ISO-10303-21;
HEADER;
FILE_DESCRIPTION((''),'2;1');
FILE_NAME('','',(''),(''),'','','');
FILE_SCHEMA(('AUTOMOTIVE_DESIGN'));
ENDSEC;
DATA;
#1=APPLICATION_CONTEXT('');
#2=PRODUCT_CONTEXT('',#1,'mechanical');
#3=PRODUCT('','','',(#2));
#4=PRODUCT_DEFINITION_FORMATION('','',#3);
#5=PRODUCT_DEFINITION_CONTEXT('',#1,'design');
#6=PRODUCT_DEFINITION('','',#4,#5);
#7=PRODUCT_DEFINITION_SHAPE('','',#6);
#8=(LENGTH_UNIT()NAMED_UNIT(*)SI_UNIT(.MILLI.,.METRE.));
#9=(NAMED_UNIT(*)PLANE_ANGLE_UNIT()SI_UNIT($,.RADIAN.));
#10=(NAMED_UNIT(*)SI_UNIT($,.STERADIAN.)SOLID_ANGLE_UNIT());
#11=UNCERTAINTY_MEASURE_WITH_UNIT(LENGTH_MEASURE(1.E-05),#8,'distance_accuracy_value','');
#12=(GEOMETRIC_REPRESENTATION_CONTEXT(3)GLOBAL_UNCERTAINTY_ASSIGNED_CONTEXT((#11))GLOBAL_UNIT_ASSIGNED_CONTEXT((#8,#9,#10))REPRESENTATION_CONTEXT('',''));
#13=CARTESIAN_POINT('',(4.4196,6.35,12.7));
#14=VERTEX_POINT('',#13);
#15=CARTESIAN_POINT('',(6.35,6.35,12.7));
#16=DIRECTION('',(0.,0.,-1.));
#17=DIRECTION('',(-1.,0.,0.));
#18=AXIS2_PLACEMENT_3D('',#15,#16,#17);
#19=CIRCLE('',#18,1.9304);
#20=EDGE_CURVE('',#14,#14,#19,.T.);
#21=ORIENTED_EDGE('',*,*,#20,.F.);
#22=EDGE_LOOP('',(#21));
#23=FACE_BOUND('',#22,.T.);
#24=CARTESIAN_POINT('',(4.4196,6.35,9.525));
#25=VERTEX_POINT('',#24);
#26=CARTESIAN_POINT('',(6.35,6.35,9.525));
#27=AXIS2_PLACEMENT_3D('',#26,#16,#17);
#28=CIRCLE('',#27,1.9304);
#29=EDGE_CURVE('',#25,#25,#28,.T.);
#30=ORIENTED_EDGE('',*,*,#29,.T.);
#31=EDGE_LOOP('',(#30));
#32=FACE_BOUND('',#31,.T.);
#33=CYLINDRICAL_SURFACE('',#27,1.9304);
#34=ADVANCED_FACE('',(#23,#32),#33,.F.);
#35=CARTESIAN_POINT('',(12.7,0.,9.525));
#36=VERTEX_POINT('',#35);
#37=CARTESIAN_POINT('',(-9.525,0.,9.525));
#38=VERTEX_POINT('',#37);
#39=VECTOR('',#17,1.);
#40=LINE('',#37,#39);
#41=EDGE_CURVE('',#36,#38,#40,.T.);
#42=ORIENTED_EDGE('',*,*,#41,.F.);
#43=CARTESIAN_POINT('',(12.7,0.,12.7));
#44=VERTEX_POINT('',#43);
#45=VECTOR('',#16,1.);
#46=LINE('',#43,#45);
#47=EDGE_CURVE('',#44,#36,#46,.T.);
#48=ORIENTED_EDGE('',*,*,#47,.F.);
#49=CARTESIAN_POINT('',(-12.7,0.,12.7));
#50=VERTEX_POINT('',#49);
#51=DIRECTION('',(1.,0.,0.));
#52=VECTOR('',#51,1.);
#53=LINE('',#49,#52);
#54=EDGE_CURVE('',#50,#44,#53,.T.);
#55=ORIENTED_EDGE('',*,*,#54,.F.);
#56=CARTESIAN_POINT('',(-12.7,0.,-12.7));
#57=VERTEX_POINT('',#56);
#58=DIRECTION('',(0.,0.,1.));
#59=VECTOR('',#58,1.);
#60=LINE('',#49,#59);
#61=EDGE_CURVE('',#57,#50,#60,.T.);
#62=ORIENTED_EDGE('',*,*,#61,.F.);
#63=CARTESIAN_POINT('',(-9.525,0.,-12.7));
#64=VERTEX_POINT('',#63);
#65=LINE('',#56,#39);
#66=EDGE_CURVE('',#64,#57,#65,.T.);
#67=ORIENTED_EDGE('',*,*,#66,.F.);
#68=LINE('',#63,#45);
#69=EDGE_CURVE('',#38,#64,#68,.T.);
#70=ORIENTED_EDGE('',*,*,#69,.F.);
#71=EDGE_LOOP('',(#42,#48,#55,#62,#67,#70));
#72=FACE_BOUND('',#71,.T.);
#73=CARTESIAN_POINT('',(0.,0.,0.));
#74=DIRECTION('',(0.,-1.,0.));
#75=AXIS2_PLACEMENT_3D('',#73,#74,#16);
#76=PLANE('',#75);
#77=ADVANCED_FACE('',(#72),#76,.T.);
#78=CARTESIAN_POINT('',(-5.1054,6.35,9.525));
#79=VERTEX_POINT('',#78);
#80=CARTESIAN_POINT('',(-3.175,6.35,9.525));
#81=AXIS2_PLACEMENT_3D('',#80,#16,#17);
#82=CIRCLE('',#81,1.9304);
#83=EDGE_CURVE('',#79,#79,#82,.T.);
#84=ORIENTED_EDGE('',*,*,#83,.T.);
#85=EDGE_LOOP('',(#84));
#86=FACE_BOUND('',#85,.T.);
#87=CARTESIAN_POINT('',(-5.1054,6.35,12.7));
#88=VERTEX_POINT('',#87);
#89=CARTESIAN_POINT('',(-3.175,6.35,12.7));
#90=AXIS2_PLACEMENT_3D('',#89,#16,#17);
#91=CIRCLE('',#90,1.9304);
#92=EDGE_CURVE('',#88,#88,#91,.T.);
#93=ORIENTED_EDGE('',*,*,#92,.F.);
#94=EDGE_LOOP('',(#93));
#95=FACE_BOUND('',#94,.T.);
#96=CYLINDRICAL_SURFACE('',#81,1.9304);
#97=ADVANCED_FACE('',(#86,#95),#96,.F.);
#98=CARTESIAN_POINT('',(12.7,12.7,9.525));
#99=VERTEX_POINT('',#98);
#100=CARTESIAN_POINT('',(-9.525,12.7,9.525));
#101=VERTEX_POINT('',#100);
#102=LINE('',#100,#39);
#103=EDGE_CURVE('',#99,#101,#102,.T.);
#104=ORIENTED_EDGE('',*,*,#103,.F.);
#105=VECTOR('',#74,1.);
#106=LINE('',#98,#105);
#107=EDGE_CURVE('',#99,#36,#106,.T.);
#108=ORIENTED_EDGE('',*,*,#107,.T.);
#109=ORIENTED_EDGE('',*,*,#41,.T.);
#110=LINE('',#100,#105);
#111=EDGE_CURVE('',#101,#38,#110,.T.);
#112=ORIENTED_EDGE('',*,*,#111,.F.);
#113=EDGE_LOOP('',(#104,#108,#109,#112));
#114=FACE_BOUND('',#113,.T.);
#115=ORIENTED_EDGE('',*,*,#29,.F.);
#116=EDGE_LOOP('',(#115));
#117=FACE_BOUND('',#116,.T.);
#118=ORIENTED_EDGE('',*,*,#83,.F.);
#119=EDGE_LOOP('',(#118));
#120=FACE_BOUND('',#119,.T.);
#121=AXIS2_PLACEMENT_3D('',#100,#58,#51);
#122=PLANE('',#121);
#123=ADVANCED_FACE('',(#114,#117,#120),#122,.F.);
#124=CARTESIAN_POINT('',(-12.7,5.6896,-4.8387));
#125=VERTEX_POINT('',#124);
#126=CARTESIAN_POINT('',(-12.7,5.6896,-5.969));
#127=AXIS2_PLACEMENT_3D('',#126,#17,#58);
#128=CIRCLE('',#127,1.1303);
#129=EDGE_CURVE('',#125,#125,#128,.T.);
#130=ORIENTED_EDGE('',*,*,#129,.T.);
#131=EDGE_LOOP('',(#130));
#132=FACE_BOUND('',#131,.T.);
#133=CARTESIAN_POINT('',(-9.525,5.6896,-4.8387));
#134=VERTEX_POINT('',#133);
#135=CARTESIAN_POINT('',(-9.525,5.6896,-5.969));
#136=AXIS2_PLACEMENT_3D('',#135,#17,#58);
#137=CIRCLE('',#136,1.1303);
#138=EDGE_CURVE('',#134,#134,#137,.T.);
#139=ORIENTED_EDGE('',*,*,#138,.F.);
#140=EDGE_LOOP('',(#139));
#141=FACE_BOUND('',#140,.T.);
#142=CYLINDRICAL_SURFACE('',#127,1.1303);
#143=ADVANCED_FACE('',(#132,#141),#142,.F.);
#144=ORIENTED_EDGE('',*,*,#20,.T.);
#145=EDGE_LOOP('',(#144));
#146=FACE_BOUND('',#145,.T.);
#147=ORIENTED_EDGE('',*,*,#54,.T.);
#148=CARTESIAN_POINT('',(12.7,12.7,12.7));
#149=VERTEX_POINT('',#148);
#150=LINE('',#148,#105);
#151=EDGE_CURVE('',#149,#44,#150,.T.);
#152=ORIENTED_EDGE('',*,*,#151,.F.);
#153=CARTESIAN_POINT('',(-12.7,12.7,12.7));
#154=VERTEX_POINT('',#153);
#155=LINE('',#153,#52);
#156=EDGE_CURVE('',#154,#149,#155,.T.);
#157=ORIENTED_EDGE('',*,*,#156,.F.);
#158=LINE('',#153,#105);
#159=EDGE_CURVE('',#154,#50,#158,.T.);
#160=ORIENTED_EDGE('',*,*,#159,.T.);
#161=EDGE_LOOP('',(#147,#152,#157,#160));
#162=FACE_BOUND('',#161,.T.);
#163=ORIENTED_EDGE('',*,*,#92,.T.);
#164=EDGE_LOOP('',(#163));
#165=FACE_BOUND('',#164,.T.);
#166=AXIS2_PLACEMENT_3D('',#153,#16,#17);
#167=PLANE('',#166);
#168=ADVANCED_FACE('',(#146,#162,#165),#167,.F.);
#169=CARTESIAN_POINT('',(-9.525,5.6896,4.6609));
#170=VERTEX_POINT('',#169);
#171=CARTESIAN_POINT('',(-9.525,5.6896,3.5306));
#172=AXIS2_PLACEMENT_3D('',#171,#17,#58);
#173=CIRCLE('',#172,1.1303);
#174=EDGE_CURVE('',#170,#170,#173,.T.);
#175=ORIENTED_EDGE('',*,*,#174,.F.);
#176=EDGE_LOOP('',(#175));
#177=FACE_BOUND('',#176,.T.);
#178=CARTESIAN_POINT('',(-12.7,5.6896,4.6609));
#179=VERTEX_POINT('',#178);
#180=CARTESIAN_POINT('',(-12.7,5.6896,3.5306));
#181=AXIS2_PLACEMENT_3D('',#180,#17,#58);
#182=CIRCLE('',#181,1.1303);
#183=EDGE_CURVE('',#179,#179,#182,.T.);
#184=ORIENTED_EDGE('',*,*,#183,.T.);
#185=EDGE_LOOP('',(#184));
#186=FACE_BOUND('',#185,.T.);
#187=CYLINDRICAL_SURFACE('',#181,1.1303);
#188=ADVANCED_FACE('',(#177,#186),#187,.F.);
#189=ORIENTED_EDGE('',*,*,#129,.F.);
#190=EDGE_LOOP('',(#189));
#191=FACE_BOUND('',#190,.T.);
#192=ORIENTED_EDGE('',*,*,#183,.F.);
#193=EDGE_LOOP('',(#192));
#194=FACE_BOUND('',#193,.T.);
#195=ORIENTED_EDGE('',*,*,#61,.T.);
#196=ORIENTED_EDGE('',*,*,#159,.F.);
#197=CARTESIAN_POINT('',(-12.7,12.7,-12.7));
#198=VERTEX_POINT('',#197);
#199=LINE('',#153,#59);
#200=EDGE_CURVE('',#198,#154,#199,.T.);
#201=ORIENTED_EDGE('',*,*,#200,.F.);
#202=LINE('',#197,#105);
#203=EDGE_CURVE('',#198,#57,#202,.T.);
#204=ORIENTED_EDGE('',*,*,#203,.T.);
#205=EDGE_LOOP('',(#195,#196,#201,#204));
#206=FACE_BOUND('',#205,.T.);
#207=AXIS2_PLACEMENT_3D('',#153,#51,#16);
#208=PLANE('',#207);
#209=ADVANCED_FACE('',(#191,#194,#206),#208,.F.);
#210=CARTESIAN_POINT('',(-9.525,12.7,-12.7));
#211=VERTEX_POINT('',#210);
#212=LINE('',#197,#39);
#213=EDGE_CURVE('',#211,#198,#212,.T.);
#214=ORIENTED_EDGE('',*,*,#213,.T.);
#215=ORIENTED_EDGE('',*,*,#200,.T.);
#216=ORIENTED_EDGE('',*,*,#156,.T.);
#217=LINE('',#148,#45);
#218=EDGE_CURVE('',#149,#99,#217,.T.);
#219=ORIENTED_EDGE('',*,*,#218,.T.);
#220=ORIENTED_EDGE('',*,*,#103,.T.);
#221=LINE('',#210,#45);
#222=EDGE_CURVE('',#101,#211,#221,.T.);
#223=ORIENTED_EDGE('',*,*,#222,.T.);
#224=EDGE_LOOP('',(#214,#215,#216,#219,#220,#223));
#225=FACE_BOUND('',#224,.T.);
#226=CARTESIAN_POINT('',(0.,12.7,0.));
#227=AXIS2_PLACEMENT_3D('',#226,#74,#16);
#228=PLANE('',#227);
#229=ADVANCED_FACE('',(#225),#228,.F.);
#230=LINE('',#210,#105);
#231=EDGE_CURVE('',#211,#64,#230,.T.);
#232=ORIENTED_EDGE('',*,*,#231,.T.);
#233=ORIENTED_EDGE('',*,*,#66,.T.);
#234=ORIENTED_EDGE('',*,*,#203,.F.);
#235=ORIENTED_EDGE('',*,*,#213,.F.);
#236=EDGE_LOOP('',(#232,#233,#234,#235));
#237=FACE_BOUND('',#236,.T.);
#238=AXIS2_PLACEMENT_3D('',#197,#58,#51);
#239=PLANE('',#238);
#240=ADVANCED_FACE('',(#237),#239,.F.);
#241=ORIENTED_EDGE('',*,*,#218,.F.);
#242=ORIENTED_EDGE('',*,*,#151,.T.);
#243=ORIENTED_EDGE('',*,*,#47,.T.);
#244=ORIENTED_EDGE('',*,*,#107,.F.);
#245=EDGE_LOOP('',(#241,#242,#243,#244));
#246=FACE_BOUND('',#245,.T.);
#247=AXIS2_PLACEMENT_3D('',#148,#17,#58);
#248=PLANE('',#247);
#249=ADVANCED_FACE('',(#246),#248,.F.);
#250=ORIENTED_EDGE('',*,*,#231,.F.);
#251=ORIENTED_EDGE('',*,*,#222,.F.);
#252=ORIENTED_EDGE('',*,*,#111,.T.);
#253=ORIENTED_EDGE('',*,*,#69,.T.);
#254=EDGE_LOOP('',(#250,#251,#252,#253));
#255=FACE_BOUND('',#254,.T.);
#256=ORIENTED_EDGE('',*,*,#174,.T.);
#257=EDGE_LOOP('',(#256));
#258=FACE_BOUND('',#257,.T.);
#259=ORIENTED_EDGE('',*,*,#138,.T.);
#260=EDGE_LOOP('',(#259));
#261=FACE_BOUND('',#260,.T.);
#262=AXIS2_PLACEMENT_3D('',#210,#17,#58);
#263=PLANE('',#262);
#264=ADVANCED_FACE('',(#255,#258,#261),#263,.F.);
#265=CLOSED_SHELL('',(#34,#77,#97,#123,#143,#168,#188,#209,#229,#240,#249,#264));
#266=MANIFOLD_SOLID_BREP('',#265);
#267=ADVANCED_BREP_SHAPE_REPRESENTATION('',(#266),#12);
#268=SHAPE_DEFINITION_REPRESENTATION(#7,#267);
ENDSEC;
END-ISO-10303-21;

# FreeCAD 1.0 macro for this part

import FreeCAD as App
import Part
import Sketcher
Q = App.Units.Quantity


def add_polygon(sketch, points):
    """Adds a closed chain of lines whose ends are joined by coincident constraints."""
    first, n = sketch.GeometryCount, len(points)
    for a, b in zip(points, points[1:] + points[:1]):
        sketch.addGeometry(Part.LineSegment(App.Vector(*a, 0), App.Vector(*b, 0)), False)
    for i in range(n):
        sketch.addConstraint(Sketcher.Constraint("Coincident", first + i, 2, first + (i + 1) % n, 1))

doc = App.newDocument("Part")
body = doc.addObject("PartDesign::Body", "Body")

# Sketch on XZ plane
sketch1 = doc.addObject("Sketcher::SketchObject", "Sketch")
body.addObject(sketch1)
sketch1.AttachmentSupport = (doc.XZ_Plane, [""])
sketch1.MapMode = "FlatFace"
add_polygon(sketch1, [(-9.525, 9.525), (-9.525, -12.7), (-12.7, -12.7), (-12.7, 12.7), (12.7, 12.7), (12.7, 9.525)])  # lines 0-5
sketch1.addConstraint(Sketcher.Constraint("Vertical", 0))
sketch1.addConstraint(Sketcher.Constraint("Horizontal", 1))
sketch1.addConstraint(Sketcher.Constraint("Vertical", 2))
sketch1.addConstraint(Sketcher.Constraint("Horizontal", 3))
sketch1.addConstraint(Sketcher.Constraint("Vertical", 4))
sketch1.addConstraint(Sketcher.Constraint("Horizontal", 5))
sketch1.addConstraint(Sketcher.Constraint("Symmetric", 1, 2, 3, 2, -1, 1))
sketch1.addConstraint(Sketcher.Constraint("Equal", 5, 0))
sketch1.addConstraint(Sketcher.Constraint("Equal", 3, 2))
sketch1.addConstraint(Sketcher.Constraint("DistanceX", 3, 1, 3, 2, Q("1 in")))
sketch1.addConstraint(Sketcher.Constraint("DistanceX", 1, 2, 1, 1, Q("0.125 in")))
pad1 = doc.addObject("PartDesign::Pad", "Pad")
body.addObject(pad1)
pad1.Profile = sketch1
pad1.Length = Q("0.5 in")
pad1.Reversed = True

# Sketch on XY plane
sketch2 = doc.addObject("Sketcher::SketchObject", "Sketch001")
body.addObject(sketch2)
sketch2.AttachmentSupport = (doc.XY_Plane, [""])
sketch2.MapMode = "FlatFace"
sketch2.AttachmentOffset = App.Placement(App.Vector(0, 0, 0.375 * 25.4), App.Rotation())
sketch2.addGeometry(Part.Circle(App.Vector(6.35, 6.35, 0), App.Vector(0, 0, 1), 1.9304), False)
sketch2.addGeometry(Part.Circle(App.Vector(-3.175, 6.35, 0), App.Vector(0, 0, 1), 1.9304), False)
sketch2.addConstraint(Sketcher.Constraint("Equal", 0, 1))
sketch2.addConstraint(Sketcher.Constraint("Horizontal", 0, 3, 1, 3))
sketch2.addConstraint(Sketcher.Constraint("Diameter", 0, Q("0.152 in")))
sketch2.addConstraint(Sketcher.Constraint("DistanceX", -1, 1, 0, 3, Q("0.25 in")))
sketch2.addConstraint(Sketcher.Constraint("DistanceY", -1, 1, 0, 3, Q("0.25 in")))
sketch2.addConstraint(Sketcher.Constraint("DistanceX", 1, 3, -1, 1, Q("0.125 in")))
doc.recompute()
hole = doc.addObject("PartDesign::Hole", "Hole")
body.addObject(hole)
hole.Profile = sketch2
hole.ThreadType = "None"
hole.Diameter = Q("0.152 in")
hole.DepthType = "ThroughAll"
hole.Reversed = True

# Sketch on YZ plane
sketch3 = doc.addObject("Sketcher::SketchObject", "Sketch002")
body.addObject(sketch3)
sketch3.AttachmentSupport = (doc.YZ_Plane, [""])
sketch3.MapMode = "FlatFace"
sketch3.AttachmentOffset = App.Placement(App.Vector(0, 0, -0.5 * 25.4), App.Rotation())
sketch3.addGeometry(Part.Circle(App.Vector(5.6896, -5.969, 0), App.Vector(0, 0, 1), 1.1303), False)
sketch3.addGeometry(Part.Circle(App.Vector(5.6896, 3.5306, 0), App.Vector(0, 0, 1), 1.1303), False)
sketch3.addConstraint(Sketcher.Constraint("Equal", 0, 1))
sketch3.addConstraint(Sketcher.Constraint("Vertical", 0, 3, 1, 3))
sketch3.addConstraint(Sketcher.Constraint("Diameter", 0, Q("0.089 in")))
sketch3.addConstraint(Sketcher.Constraint("DistanceX", -1, 1, 0, 3, Q("0.224 in")))
sketch3.addConstraint(Sketcher.Constraint("DistanceY", 0, 3, -1, 1, Q("0.235 in")))
sketch3.addConstraint(Sketcher.Constraint("DistanceY", -1, 1, 1, 3, Q("0.139 in")))
doc.recompute()
hole2 = doc.addObject("PartDesign::Hole", "Hole001")
body.addObject(hole2)
hole2.Profile = sketch3
hole2.ThreadType = "None"
hole2.Diameter = Q("0.089 in")
hole2.DepthType = "ThroughAll"
hole2.Reversed = True

doc.recompute()
